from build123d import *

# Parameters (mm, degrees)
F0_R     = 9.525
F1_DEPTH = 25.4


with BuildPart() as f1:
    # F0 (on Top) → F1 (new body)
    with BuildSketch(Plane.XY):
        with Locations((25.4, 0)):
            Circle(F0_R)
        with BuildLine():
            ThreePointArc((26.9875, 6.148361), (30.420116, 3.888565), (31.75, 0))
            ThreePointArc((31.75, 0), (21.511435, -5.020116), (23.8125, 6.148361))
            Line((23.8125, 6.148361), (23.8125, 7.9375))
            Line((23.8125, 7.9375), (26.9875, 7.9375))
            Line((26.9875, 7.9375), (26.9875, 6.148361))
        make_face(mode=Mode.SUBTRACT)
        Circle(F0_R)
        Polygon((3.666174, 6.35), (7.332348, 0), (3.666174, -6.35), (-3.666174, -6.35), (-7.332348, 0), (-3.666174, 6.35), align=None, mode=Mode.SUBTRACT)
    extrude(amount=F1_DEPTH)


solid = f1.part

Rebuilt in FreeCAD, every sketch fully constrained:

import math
import FreeCAD as App
import Part
import Sketcher

V = App.Vector
Q = App.Units.Quantity

doc = App.newDocument("Part")
body = doc.addObject("PartDesign::Body", "Body")
body.AllowCompound = True

# Sketch on XY plane
sketch1 = body.newObject("Sketcher::SketchObject", "Sketch")
sketch1.AttachmentSupport = (doc.getObject("XY_Plane"), [""])
sketch1.MapMode = "FlatFace"
sketch1.addGeometry([
    Part.Circle(V(25.4, 0, 0), V(0, 0, 1), 9.525),  # 0
    Part.LineSegment(V(26.9875, 7.9375, 0), V(26.9875, 6.148361, 0)),  # 1
    Part.ArcOfCircle(Part.Circle(V(25.400001, 0.000001, 0), V(0, 0, 1), 6.349999), math.radians(-0.000005), math.radians(75.522494)),  # 2
    Part.ArcOfCircle(Part.Circle(V(25.4, 0, 0), V(0, 0, 1), 6.35), math.radians(104.477512), math.radians(360.000001)),  # 3
    Part.LineSegment(V(23.8125, 6.148361, 0), V(23.8125, 7.9375, 0)),  # 4
    Part.LineSegment(V(23.8125, 7.9375, 0), V(26.9875, 7.9375, 0)),  # 5
    Part.Circle(V(0, 0, 0), V(0, 0, 1), 9.525),  # 6
    Part.LineSegment(V(-3.666174, 6.35, 0), V(3.666174, 6.35, 0)),  # 7
    Part.LineSegment(V(3.666174, 6.35, 0), V(7.332348, 0, 0)),  # 8
    Part.LineSegment(V(7.332348, 0, 0), V(3.666174, -6.35, 0)),  # 9
    Part.LineSegment(V(3.666174, -6.35, 0), V(-3.666174, -6.35, 0)),  # 10
    Part.LineSegment(V(-3.666174, -6.35, 0), V(-7.332348, 0, 0)),  # 11
    Part.LineSegment(V(-7.332348, 0, 0), V(-3.666174, 6.35, 0)),  # 12
], False)
sketch1.addConstraint([
    Sketcher.Constraint("Coincident", 1, 2, 2, 2),
    Sketcher.Constraint("Tangent", 2, 1, 3, 2),
    Sketcher.Constraint("Coincident", 3, 1, 4, 1),
    Sketcher.Constraint("Coincident", 4, 2, 5, 1),
    Sketcher.Constraint("Coincident", 5, 2, 1, 1),
    Sketcher.Constraint("Coincident", 7, 2, 8, 1),
    Sketcher.Constraint("Coincident", 8, 2, 9, 1),
    Sketcher.Constraint("Coincident", 9, 2, 10, 1),
    Sketcher.Constraint("Coincident", 10, 2, 11, 1),
    Sketcher.Constraint("Coincident", 11, 2, 12, 1),
    Sketcher.Constraint("Coincident", 12, 2, 7, 1),
    Sketcher.Constraint("Vertical", 1),
    Sketcher.Constraint("Vertical", 4),
    Sketcher.Constraint("Horizontal", 5),
    Sketcher.Constraint("Horizontal", 7),
    Sketcher.Constraint("Horizontal", 10),
    Sketcher.Constraint("Coincident", 6, 3, -1, 1),
    Sketcher.Constraint("Coincident", 2, 3, 0, 3),
    Sketcher.Constraint("Equal", 2, 3),
    Sketcher.Constraint("Equal", 0, 6),
    Sketcher.Constraint("Symmetric", 7, 2, 10, 2, -1, 1),
    Sketcher.Constraint("Symmetric", 8, 2, 11, 2, -1, 1),
    Sketcher.Constraint("PointOnObject", 0, 3, -1),
    Sketcher.Constraint("PointOnObject", 2, 1, -1),
    Sketcher.Constraint("PointOnObject", 8, 2, -1),
    Sketcher.Constraint("Parallel", 9, 12),
    Sketcher.Constraint("Horizontal", 1, 2, 3, 1),
    Sketcher.Constraint("Vertical", 7, 2, 9, 2),
    Sketcher.Constraint("Diameter", 0, Q("0.75 in")),
    Sketcher.Constraint("Radius", 2, Q("0.25 in")),
    Sketcher.Constraint("DistanceX", -1, 1, 0, 3, Q("1 in")),
    Sketcher.Constraint("Angle", 8, Q("-60.000001 deg")),
    Sketcher.Constraint("DistanceY", 9, 2, 7, 2, Q("0.5 in")),
    Sketcher.Constraint("DistanceX", 5, 1, 5, 2, Q("0.125 in")),
    Sketcher.Constraint("DistanceY", -1, 1, 4, 2, Q("0.3125 in")),
    Sketcher.Constraint("DistanceX", 7, 1, 7, 2, 7.332348),
])
pad1 = body.newObject("PartDesign::Pad", "Pad")
pad1.Profile = sketch1
pad1.Length = Q("1 in")

doc.recompute()
